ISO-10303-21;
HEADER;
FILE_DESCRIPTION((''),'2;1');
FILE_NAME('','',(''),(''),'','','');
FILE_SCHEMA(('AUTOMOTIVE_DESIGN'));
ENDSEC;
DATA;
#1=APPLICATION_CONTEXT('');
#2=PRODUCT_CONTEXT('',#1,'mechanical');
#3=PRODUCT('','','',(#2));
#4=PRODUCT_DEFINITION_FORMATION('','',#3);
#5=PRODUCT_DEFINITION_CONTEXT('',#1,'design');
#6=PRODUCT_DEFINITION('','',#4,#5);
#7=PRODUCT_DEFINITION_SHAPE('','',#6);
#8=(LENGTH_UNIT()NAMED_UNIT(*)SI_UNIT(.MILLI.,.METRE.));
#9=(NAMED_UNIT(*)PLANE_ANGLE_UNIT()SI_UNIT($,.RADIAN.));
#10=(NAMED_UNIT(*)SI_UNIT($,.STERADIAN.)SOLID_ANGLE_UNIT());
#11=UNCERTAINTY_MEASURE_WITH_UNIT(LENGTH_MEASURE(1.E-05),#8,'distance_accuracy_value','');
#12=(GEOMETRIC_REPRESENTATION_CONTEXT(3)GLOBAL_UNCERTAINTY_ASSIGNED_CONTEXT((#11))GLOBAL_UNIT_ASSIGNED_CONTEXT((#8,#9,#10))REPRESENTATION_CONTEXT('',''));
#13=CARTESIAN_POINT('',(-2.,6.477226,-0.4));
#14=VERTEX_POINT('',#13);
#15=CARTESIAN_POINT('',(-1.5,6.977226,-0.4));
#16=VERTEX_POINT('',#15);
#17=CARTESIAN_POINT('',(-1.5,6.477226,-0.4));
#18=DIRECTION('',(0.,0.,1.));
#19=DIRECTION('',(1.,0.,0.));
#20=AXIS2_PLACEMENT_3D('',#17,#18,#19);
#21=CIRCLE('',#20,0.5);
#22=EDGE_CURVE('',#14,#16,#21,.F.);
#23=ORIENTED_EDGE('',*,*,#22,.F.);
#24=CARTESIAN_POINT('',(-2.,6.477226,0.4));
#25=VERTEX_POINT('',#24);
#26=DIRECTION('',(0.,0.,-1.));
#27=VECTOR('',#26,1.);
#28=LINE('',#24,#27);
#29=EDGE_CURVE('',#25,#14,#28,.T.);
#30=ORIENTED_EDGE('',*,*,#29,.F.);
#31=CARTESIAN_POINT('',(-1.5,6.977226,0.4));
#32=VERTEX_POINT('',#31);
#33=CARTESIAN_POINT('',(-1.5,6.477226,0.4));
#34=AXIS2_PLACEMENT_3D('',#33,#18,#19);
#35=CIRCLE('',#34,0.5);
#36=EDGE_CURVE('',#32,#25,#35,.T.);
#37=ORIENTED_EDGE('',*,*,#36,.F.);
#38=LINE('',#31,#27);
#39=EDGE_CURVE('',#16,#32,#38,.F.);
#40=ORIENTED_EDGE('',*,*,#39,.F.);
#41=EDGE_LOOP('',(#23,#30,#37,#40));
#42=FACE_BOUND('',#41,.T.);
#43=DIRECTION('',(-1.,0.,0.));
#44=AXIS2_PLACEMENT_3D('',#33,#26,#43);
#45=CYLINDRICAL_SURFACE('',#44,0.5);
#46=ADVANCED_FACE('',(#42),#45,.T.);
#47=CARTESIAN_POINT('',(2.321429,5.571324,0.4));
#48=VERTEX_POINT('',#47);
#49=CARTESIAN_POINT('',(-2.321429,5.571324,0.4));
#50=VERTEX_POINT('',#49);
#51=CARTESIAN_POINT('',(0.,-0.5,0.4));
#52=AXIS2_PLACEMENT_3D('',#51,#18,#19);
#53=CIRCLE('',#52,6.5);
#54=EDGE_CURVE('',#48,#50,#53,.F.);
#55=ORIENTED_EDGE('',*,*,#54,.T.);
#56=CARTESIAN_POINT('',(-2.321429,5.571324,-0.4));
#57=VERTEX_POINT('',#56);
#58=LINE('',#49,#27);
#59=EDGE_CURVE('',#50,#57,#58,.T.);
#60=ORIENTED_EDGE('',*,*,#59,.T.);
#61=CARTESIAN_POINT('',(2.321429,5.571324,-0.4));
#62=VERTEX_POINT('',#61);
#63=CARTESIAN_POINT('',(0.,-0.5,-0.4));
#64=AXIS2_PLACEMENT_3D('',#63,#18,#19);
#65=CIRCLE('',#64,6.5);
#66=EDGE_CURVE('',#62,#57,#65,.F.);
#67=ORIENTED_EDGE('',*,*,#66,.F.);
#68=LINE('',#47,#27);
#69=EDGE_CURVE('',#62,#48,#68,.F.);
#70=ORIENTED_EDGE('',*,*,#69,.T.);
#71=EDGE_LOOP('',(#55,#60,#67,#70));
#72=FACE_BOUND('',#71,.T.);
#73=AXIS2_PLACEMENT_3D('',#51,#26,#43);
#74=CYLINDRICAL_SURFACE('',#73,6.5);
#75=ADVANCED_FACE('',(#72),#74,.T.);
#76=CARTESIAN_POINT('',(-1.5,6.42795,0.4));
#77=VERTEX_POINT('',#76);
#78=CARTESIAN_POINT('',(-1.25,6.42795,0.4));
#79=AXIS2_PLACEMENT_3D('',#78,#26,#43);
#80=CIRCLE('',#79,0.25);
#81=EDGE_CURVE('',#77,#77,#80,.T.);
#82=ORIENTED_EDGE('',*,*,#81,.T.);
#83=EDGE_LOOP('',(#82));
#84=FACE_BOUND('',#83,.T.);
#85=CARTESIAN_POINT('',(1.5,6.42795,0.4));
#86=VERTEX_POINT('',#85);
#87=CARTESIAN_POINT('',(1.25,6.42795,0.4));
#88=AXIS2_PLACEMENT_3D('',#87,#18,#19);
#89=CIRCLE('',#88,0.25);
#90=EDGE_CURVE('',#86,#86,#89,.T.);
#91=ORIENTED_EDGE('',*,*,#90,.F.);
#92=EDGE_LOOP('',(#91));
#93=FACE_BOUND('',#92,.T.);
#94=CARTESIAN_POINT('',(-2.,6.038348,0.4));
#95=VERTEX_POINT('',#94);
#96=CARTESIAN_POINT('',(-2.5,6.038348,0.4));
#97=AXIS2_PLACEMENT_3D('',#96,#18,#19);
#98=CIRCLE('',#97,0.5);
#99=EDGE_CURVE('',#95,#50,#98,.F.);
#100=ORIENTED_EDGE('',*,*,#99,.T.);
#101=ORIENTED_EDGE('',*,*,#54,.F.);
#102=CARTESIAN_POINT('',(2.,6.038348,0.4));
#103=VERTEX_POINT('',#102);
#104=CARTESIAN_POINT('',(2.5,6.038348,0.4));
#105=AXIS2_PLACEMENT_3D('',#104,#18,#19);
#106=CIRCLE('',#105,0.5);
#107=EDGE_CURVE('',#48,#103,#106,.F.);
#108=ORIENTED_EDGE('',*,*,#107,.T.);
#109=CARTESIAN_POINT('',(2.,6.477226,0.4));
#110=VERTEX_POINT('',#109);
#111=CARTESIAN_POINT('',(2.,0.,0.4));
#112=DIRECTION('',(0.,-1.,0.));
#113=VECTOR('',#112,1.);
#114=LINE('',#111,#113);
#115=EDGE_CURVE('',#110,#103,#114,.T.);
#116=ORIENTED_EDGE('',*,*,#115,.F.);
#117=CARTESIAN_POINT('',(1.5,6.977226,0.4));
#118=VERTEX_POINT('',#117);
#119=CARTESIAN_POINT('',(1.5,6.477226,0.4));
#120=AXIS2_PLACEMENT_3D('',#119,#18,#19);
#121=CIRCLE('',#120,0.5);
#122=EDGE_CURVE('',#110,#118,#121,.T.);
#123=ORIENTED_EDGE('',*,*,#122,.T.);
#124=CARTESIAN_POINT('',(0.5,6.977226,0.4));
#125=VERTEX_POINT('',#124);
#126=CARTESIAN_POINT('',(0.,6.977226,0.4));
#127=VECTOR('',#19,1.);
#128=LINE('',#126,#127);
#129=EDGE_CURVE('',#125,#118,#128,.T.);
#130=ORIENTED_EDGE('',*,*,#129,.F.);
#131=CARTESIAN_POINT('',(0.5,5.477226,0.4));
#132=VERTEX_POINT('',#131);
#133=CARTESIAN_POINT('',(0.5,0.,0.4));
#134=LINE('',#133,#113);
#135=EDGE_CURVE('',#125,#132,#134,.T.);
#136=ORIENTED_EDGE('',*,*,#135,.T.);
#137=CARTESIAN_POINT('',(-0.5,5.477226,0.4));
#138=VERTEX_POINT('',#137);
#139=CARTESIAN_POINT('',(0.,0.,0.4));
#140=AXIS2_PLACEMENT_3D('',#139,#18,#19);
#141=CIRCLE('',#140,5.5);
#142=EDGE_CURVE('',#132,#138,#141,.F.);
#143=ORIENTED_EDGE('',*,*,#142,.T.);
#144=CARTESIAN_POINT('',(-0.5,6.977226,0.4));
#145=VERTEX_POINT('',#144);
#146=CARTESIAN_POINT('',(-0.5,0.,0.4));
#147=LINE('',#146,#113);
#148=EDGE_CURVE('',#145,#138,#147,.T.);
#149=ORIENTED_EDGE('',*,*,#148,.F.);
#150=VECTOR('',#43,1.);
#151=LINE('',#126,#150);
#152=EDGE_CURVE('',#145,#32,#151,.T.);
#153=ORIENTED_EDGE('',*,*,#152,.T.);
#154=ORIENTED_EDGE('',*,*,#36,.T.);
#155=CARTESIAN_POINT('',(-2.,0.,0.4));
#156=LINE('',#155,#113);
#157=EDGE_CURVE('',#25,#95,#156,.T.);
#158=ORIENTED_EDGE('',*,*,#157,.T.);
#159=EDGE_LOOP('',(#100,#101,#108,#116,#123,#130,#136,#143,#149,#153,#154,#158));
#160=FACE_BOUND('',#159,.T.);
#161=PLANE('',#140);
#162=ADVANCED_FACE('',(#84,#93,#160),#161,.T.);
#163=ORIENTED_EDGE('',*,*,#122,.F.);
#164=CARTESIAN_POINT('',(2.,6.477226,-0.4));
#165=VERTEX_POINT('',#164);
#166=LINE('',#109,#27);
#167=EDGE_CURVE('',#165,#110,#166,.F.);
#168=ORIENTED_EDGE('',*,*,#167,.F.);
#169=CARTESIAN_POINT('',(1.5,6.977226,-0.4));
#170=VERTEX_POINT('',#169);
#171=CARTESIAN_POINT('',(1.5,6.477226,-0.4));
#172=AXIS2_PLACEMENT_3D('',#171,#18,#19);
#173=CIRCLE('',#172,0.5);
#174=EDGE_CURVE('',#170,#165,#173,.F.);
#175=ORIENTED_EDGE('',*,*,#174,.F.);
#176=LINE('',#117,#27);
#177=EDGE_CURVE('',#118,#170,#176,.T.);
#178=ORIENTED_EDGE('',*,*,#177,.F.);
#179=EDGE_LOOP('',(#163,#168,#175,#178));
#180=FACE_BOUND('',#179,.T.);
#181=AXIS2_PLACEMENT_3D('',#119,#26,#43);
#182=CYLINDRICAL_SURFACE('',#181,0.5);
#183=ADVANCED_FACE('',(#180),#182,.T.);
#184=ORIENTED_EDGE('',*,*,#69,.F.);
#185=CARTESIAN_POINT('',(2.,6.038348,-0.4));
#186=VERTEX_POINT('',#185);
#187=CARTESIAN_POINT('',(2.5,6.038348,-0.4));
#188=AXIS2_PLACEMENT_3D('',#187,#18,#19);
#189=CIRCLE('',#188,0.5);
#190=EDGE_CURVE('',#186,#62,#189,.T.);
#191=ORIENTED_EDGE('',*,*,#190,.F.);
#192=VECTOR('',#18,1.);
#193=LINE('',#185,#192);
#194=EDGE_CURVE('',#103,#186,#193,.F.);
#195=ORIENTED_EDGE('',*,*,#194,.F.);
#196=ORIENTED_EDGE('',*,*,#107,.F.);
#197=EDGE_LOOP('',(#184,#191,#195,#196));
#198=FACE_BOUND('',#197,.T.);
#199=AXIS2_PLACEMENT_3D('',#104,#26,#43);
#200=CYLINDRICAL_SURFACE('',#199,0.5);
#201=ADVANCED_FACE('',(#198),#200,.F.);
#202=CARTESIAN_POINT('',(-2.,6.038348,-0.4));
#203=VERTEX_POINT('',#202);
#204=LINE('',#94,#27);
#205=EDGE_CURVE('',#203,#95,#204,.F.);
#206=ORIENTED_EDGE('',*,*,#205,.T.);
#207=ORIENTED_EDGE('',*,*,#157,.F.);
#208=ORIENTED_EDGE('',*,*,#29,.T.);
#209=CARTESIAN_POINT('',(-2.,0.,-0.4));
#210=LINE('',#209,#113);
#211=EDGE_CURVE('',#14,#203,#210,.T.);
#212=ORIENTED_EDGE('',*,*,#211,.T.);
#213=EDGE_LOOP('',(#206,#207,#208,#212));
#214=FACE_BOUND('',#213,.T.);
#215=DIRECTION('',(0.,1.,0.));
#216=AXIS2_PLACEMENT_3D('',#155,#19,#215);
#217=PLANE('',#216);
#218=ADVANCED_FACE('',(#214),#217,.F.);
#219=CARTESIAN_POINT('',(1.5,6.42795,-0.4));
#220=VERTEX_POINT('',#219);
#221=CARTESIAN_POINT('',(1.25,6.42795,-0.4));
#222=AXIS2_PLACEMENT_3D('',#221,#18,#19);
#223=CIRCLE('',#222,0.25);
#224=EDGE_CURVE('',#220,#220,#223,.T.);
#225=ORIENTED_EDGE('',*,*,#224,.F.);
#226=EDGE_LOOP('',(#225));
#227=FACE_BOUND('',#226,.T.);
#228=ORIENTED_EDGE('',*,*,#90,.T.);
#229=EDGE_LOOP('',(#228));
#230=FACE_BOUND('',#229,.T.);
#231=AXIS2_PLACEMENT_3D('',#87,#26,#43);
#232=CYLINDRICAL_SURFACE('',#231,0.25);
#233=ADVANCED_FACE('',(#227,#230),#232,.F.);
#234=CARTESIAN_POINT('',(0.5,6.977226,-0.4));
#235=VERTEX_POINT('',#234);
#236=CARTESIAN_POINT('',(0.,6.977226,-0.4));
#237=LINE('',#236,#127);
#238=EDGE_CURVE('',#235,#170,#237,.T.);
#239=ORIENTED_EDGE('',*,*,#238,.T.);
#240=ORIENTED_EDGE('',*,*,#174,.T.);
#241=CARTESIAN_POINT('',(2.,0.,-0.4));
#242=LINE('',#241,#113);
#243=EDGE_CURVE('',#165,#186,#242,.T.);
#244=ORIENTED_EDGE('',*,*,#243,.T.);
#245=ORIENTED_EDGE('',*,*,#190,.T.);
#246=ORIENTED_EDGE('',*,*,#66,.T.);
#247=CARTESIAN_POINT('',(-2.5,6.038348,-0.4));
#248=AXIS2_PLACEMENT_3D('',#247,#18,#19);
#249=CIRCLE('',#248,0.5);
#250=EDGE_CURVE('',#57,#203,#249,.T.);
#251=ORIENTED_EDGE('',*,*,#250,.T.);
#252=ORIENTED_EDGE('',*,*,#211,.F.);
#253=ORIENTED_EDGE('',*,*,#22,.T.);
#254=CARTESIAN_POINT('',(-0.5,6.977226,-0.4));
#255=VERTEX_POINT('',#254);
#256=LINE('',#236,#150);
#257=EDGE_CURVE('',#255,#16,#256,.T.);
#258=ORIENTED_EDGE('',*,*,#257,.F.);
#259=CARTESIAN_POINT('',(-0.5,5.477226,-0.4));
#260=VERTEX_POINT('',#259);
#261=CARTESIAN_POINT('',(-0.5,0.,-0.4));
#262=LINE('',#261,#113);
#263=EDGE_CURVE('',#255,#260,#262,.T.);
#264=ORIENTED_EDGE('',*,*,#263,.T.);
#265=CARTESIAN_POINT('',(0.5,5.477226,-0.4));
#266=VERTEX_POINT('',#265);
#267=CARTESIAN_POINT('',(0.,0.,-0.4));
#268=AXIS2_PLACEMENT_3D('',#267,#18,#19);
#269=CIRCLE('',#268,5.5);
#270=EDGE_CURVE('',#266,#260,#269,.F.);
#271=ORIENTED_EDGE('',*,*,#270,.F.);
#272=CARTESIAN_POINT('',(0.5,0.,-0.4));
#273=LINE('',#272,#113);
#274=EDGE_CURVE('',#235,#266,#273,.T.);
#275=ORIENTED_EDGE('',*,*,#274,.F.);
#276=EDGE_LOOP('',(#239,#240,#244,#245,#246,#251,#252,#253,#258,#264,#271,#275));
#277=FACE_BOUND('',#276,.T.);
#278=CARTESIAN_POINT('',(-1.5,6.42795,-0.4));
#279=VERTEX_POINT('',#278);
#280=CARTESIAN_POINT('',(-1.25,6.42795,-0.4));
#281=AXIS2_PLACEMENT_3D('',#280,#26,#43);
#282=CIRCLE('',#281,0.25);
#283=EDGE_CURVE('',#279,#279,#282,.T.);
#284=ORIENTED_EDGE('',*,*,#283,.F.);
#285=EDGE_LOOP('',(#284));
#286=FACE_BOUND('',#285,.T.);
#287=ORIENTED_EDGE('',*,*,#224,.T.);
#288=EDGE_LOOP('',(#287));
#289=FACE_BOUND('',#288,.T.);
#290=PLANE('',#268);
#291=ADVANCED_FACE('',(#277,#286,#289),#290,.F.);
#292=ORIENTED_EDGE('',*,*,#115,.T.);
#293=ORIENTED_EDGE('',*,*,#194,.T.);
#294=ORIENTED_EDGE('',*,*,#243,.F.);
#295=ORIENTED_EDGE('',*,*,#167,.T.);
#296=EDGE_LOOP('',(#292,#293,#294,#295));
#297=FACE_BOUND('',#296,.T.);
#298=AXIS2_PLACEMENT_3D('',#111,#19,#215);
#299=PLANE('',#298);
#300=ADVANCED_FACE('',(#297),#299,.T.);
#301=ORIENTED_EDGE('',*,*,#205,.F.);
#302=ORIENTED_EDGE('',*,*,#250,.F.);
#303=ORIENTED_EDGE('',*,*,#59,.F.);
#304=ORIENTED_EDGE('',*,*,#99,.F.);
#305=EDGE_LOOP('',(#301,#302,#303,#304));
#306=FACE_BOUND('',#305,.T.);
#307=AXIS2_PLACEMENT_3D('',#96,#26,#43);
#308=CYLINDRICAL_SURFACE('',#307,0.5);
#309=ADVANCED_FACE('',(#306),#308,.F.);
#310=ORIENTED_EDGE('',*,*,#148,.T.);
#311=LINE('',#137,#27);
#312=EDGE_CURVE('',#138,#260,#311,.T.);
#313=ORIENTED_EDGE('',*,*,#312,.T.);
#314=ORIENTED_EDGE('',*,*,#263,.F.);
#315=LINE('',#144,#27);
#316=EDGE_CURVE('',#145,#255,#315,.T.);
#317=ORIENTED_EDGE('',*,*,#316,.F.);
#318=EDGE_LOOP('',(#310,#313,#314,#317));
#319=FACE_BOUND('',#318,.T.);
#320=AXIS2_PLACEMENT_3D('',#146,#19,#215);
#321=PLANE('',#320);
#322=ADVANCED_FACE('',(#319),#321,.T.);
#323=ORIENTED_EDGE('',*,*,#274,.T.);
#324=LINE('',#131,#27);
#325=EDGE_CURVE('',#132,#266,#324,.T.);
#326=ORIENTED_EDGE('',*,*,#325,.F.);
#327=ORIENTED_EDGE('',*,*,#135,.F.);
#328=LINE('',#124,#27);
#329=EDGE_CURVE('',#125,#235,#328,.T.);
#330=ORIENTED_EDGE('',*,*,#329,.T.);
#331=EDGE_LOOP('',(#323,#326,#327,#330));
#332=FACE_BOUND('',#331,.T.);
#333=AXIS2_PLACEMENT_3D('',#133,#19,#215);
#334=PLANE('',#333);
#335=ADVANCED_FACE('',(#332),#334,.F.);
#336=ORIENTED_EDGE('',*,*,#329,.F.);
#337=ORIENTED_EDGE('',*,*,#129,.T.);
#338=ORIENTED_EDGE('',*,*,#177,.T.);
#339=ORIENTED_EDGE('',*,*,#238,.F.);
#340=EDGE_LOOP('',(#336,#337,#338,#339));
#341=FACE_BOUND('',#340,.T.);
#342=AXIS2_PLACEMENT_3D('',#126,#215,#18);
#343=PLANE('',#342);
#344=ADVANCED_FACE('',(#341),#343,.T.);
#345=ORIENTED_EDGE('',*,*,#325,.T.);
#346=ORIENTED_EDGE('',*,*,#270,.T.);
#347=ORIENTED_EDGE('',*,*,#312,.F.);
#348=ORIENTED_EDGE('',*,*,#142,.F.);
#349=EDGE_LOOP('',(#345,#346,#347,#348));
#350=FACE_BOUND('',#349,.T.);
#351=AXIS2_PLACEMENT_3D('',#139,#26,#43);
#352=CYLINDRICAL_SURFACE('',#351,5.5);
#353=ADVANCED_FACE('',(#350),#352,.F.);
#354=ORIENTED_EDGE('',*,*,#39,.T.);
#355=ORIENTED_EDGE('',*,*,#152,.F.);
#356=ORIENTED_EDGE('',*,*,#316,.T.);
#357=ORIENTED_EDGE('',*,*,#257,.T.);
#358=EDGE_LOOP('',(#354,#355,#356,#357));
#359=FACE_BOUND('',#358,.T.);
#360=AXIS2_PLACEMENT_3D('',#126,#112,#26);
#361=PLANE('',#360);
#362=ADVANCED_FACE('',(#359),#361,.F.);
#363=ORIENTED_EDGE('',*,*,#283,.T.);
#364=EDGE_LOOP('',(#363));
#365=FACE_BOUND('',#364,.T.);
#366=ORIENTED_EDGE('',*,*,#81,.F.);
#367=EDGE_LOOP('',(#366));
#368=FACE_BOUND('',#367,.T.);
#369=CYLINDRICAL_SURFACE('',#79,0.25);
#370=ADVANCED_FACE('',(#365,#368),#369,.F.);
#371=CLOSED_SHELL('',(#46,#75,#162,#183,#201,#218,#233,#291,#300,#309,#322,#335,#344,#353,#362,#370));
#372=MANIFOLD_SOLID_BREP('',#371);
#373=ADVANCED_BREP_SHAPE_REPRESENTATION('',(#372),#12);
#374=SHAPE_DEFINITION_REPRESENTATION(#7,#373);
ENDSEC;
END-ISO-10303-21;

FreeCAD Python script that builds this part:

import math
import FreeCAD as App
import Part
import Sketcher

V = App.Vector


def edges_at(feature, points):
    """Names of the edges that pass closest to the given points."""
    edges = feature.Shape.Edges
    near = lambda p: min(range(len(edges)), key=lambda i: edges[i].distToShape(Part.Vertex(*p))[0])
    return sorted({f"Edge{near(p) + 1}" for p in points})

doc = App.newDocument("Part")
body = doc.addObject("PartDesign::Body", "Body")

sketch1 = body.newObject("Sketcher::SketchObject", "Sketch")
sketch1.AttachmentSupport = (doc.getObject("XY_Plane"), [""])
sketch1.MapMode = "FlatFace"
sketch1.addGeometry([
    Part.LineSegment(V(2, 6.977226, 0), V(0.5, 6.977226, 0)),
    Part.LineSegment(V(0.5, 6.977226, 0), V(0.5, 5.477226, 0)),
    Part.ArcOfCircle(Part.Circle(V(0, 0, 0), V(0, 0, 1), 5.5), math.radians(-90), math.radians(84.784091)),
    Part.LineSegment(V(0, -5.5, 0), V(0, -7, 0)),
    Part.ArcOfCircle(Part.Circle(V(0, -0.5, 0), V(0, 0, 1), 6.5), math.radians(-90), math.radians(72.079787)),
    Part.LineSegment(V(2, 5.684658, 0), V(2, 6.977226, 0)),
    Part.Circle(V(1.25, 6.42795, 0), V(0, 0, 1), 0.25),
], False)
sketch1.addConstraint([
    Sketcher.Constraint("Coincident", 0, 2, 1, 1),
    Sketcher.Constraint("Coincident", 1, 2, 2, 2),
    Sketcher.Constraint("Coincident", 2, 1, 3, 1),
    Sketcher.Constraint("Coincident", 3, 2, 4, 1),
    Sketcher.Constraint("Coincident", 4, 2, 5, 1),
    Sketcher.Constraint("Coincident", 5, 2, 0, 1),
    Sketcher.Constraint("Horizontal", 0),
    Sketcher.Constraint("Vertical", 1),
    Sketcher.Constraint("Vertical", 3),
    Sketcher.Constraint("Vertical", 5),
    Sketcher.Constraint("Coincident", 2, 3, -1, 1),
    Sketcher.Constraint("PointOnObject", 4, 3, -2),
    Sketcher.Constraint("PointOnObject", 2, 1, -2),
    Sketcher.Constraint("Equal", 0, 1),
    Sketcher.Constraint("Equal", 1, 3),
    Sketcher.Constraint("Diameter", 6, 0.5),
    Sketcher.Constraint("Radius", 2, 5.5),
    Sketcher.Constraint("Radius", 4, 6.5),
    Sketcher.Constraint("DistanceX", 0, 2, 0, 1, 1.5),
    Sketcher.Constraint("DistanceX", -1, 1, 4, 2, 2.0),
    Sketcher.Constraint("DistanceX", -1, 1, 6, 3, 1.25),
    Sketcher.Constraint("DistanceY", -1, 1, 6, 3, 6.42795),
])
pad1 = body.newObject("PartDesign::Pad", "Pad")
pad1.Profile = sketch1
pad1.Length = 0.8
pad1.Midplane = True
doc.recompute()

fillet = body.newObject("PartDesign::Fillet", "Fillet")
fillet.Base = (pad1, edges_at(pad1, [(2, 6.977, 0), (2, 5.685, 0)]))
fillet.Radius = 0.5
doc.recompute()

mirrored = body.newObject("PartDesign::Mirrored", "Mirrored")
mirrored.Originals = [pad1]
mirrored.MirrorPlane = (doc.getObject("YZ_Plane"), [""])
body.Tip = mirrored
doc.recompute()

fillet2 = body.newObject("PartDesign::Fillet", "Fillet001")
fillet2.Base = (mirrored, edges_at(mirrored, [(-2, 6.977, 0), (-2, 5.685, 0)]))
fillet2.Radius = 0.5

doc.recompute()
